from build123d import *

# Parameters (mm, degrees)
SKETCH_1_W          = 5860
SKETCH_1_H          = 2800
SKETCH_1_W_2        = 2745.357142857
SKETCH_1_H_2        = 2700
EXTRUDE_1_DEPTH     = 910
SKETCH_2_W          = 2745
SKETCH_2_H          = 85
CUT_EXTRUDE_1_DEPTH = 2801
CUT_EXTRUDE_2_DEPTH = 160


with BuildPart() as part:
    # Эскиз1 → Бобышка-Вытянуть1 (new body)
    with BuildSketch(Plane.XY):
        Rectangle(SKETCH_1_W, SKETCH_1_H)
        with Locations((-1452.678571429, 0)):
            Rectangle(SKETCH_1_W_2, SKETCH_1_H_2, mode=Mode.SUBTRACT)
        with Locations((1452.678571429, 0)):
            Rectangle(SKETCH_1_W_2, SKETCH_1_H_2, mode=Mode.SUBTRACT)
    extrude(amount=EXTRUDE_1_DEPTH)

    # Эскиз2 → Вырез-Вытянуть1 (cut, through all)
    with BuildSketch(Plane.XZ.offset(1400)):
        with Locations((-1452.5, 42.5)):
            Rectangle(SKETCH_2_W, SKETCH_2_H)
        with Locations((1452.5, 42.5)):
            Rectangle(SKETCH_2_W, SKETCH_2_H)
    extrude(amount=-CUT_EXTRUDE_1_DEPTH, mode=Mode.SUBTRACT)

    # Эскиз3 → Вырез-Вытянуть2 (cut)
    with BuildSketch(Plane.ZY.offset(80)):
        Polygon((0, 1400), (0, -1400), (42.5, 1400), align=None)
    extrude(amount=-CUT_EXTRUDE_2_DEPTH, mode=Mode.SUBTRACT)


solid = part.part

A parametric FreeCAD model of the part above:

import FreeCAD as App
import Part
import Sketcher
from FreeCAD import Vector


def add_polygon(sketch, points):
    """Adds a closed chain of lines whose ends are joined by coincident constraints."""
    first, n = sketch.GeometryCount, len(points)
    for a, b in zip(points, points[1:] + points[:1]):
        sketch.addGeometry(Part.LineSegment(App.Vector(*a, 0), App.Vector(*b, 0)), False)
    for i in range(n):
        sketch.addConstraint(Sketcher.Constraint("Coincident", first + i, 2, first + (i + 1) % n, 1))

doc = App.newDocument("Part")
body = doc.addObject("PartDesign::Body", "Body")

# Sketch on XY plane
sketch1 = body.newObject("Sketcher::SketchObject", "Sketch")
sketch1.AttachmentSupport = (doc.getObject("XY_Plane"), [""])
sketch1.MapMode = "FlatFace"
add_polygon(sketch1, [(-2930, 1400), (-2930, -1400), (2930, -1400), (2930, 1400)])  # lines 0-3
add_polygon(sketch1, [(-80, -1350), (-2825, -1350), (-2825, 1350), (-80, 1350)])  # lines 4-7
add_polygon(sketch1, [(2825, -1350), (80, -1350), (80, 1350), (2825, 1350)])  # lines 8-11
sketch1.addConstraint(Sketcher.Constraint("Vertical", 0))
sketch1.addConstraint(Sketcher.Constraint("Horizontal", 1))
sketch1.addConstraint(Sketcher.Constraint("Vertical", 2))
sketch1.addConstraint(Sketcher.Constraint("Horizontal", 3))
sketch1.addConstraint(Sketcher.Constraint("Horizontal", 4))
sketch1.addConstraint(Sketcher.Constraint("Vertical", 5))
sketch1.addConstraint(Sketcher.Constraint("Horizontal", 6))
sketch1.addConstraint(Sketcher.Constraint("Vertical", 7))
sketch1.addConstraint(Sketcher.Constraint("Horizontal", 8))
sketch1.addConstraint(Sketcher.Constraint("Vertical", 9))
sketch1.addConstraint(Sketcher.Constraint("Horizontal", 10))
sketch1.addConstraint(Sketcher.Constraint("Vertical", 11))
sketch1.addConstraint(Sketcher.Constraint("Symmetric", 0, 2, 2, 2, -1, 1))
sketch1.addConstraint(Sketcher.Constraint("Symmetric", 6, 2, 8, 2, -1, 1))
sketch1.addConstraint(Sketcher.Constraint("Symmetric", 4, 2, 10, 2, -1, 1))
sketch1.addConstraint(Sketcher.Constraint("Horizontal", 7, 2, 8, 2))
sketch1.addConstraint(Sketcher.Constraint("DistanceX", 1, 1, 1, 2, 5860.0))
sketch1.addConstraint(Sketcher.Constraint("DistanceY", 0, 2, 0, 1, 2800.0))
sketch1.addConstraint(Sketcher.Constraint("DistanceY", 5, 1, 5, 2, 2700.0))
sketch1.addConstraint(Sketcher.Constraint("DistanceX", 6, 2, -1, 1, 80.0))
sketch1.addConstraint(Sketcher.Constraint("DistanceX", 4, 2, 4, 1, 2745.357143))
pad1 = body.newObject("PartDesign::Pad", "Pad")
pad1.Profile = sketch1
pad1.Length = 910

# Sketch on XZ plane
sketch2 = body.newObject("Sketcher::SketchObject", "Sketch001")
sketch2.AttachmentSupport = (doc.getObject("XZ_Plane"), [""])
sketch2.MapMode = "FlatFace"
sketch2.AttachmentOffset = App.Placement(Vector(0, 0, 1400), App.Rotation())
add_polygon(sketch2, [(-2825, 85), (-2825, 0), (-80, 0), (-80, 85)])  # lines 0-3
add_polygon(sketch2, [(80, 85), (80, 0), (2825, 0), (2825, 85)])  # lines 4-7
sketch2.addConstraint(Sketcher.Constraint("Vertical", 0))
sketch2.addConstraint(Sketcher.Constraint("Horizontal", 1))
sketch2.addConstraint(Sketcher.Constraint("Vertical", 2))
sketch2.addConstraint(Sketcher.Constraint("Horizontal", 3))
sketch2.addConstraint(Sketcher.Constraint("Vertical", 4))
sketch2.addConstraint(Sketcher.Constraint("Horizontal", 5))
sketch2.addConstraint(Sketcher.Constraint("Vertical", 6))
sketch2.addConstraint(Sketcher.Constraint("Horizontal", 7))
sketch2.addConstraint(Sketcher.Constraint("Symmetric", 1, 2, 4, 2, -1, 1))
sketch2.addConstraint(Sketcher.Constraint("Symmetric", 0, 2, 5, 2, -2))
sketch2.addConstraint(Sketcher.Constraint("Horizontal", 3, 2, 6, 2))
sketch2.addConstraint(Sketcher.Constraint("DistanceX", 1, 1, 1, 2, 2745.0))
sketch2.addConstraint(Sketcher.Constraint("DistanceY", 0, 2, 0, 1, 85.0))
sketch2.addConstraint(Sketcher.Constraint("DistanceX", 0, 2, -1, 1, 2825.0))
pocket1 = body.newObject("PartDesign::Pocket", "Pocket")
pocket1.Profile = sketch2
pocket1.Type = "ThroughAll"

# Sketch on YZ plane
sketch3 = body.newObject("Sketcher::SketchObject", "Sketch002")
sketch3.AttachmentSupport = (doc.getObject("YZ_Plane"), [""])
sketch3.MapMode = "FlatFace"
sketch3.AttachmentOffset = App.Placement(Vector(0, 0, -80), App.Rotation())
add_polygon(sketch3, [(1400, 0), (-1400, 0), (1400, 42)])  # lines 0-2
sketch3.addConstraint(Sketcher.Constraint("Horizontal", 0))
sketch3.addConstraint(Sketcher.Constraint("Vertical", 2))
sketch3.addConstraint(Sketcher.Constraint("Symmetric", 0, 2, 2, 2, -1, 1))
sketch3.addConstraint(Sketcher.Constraint("DistanceX", 0, 2, 0, 1, 2800.0))
sketch3.addConstraint(Sketcher.Constraint("DistanceY", 2, 2, 2, 1, 42.5))
pocket2 = body.newObject("PartDesign::Pocket", "Pocket001")
pocket2.Profile = sketch3
pocket2.Length = 160
pocket2.Reversed = True

doc.recompute()
